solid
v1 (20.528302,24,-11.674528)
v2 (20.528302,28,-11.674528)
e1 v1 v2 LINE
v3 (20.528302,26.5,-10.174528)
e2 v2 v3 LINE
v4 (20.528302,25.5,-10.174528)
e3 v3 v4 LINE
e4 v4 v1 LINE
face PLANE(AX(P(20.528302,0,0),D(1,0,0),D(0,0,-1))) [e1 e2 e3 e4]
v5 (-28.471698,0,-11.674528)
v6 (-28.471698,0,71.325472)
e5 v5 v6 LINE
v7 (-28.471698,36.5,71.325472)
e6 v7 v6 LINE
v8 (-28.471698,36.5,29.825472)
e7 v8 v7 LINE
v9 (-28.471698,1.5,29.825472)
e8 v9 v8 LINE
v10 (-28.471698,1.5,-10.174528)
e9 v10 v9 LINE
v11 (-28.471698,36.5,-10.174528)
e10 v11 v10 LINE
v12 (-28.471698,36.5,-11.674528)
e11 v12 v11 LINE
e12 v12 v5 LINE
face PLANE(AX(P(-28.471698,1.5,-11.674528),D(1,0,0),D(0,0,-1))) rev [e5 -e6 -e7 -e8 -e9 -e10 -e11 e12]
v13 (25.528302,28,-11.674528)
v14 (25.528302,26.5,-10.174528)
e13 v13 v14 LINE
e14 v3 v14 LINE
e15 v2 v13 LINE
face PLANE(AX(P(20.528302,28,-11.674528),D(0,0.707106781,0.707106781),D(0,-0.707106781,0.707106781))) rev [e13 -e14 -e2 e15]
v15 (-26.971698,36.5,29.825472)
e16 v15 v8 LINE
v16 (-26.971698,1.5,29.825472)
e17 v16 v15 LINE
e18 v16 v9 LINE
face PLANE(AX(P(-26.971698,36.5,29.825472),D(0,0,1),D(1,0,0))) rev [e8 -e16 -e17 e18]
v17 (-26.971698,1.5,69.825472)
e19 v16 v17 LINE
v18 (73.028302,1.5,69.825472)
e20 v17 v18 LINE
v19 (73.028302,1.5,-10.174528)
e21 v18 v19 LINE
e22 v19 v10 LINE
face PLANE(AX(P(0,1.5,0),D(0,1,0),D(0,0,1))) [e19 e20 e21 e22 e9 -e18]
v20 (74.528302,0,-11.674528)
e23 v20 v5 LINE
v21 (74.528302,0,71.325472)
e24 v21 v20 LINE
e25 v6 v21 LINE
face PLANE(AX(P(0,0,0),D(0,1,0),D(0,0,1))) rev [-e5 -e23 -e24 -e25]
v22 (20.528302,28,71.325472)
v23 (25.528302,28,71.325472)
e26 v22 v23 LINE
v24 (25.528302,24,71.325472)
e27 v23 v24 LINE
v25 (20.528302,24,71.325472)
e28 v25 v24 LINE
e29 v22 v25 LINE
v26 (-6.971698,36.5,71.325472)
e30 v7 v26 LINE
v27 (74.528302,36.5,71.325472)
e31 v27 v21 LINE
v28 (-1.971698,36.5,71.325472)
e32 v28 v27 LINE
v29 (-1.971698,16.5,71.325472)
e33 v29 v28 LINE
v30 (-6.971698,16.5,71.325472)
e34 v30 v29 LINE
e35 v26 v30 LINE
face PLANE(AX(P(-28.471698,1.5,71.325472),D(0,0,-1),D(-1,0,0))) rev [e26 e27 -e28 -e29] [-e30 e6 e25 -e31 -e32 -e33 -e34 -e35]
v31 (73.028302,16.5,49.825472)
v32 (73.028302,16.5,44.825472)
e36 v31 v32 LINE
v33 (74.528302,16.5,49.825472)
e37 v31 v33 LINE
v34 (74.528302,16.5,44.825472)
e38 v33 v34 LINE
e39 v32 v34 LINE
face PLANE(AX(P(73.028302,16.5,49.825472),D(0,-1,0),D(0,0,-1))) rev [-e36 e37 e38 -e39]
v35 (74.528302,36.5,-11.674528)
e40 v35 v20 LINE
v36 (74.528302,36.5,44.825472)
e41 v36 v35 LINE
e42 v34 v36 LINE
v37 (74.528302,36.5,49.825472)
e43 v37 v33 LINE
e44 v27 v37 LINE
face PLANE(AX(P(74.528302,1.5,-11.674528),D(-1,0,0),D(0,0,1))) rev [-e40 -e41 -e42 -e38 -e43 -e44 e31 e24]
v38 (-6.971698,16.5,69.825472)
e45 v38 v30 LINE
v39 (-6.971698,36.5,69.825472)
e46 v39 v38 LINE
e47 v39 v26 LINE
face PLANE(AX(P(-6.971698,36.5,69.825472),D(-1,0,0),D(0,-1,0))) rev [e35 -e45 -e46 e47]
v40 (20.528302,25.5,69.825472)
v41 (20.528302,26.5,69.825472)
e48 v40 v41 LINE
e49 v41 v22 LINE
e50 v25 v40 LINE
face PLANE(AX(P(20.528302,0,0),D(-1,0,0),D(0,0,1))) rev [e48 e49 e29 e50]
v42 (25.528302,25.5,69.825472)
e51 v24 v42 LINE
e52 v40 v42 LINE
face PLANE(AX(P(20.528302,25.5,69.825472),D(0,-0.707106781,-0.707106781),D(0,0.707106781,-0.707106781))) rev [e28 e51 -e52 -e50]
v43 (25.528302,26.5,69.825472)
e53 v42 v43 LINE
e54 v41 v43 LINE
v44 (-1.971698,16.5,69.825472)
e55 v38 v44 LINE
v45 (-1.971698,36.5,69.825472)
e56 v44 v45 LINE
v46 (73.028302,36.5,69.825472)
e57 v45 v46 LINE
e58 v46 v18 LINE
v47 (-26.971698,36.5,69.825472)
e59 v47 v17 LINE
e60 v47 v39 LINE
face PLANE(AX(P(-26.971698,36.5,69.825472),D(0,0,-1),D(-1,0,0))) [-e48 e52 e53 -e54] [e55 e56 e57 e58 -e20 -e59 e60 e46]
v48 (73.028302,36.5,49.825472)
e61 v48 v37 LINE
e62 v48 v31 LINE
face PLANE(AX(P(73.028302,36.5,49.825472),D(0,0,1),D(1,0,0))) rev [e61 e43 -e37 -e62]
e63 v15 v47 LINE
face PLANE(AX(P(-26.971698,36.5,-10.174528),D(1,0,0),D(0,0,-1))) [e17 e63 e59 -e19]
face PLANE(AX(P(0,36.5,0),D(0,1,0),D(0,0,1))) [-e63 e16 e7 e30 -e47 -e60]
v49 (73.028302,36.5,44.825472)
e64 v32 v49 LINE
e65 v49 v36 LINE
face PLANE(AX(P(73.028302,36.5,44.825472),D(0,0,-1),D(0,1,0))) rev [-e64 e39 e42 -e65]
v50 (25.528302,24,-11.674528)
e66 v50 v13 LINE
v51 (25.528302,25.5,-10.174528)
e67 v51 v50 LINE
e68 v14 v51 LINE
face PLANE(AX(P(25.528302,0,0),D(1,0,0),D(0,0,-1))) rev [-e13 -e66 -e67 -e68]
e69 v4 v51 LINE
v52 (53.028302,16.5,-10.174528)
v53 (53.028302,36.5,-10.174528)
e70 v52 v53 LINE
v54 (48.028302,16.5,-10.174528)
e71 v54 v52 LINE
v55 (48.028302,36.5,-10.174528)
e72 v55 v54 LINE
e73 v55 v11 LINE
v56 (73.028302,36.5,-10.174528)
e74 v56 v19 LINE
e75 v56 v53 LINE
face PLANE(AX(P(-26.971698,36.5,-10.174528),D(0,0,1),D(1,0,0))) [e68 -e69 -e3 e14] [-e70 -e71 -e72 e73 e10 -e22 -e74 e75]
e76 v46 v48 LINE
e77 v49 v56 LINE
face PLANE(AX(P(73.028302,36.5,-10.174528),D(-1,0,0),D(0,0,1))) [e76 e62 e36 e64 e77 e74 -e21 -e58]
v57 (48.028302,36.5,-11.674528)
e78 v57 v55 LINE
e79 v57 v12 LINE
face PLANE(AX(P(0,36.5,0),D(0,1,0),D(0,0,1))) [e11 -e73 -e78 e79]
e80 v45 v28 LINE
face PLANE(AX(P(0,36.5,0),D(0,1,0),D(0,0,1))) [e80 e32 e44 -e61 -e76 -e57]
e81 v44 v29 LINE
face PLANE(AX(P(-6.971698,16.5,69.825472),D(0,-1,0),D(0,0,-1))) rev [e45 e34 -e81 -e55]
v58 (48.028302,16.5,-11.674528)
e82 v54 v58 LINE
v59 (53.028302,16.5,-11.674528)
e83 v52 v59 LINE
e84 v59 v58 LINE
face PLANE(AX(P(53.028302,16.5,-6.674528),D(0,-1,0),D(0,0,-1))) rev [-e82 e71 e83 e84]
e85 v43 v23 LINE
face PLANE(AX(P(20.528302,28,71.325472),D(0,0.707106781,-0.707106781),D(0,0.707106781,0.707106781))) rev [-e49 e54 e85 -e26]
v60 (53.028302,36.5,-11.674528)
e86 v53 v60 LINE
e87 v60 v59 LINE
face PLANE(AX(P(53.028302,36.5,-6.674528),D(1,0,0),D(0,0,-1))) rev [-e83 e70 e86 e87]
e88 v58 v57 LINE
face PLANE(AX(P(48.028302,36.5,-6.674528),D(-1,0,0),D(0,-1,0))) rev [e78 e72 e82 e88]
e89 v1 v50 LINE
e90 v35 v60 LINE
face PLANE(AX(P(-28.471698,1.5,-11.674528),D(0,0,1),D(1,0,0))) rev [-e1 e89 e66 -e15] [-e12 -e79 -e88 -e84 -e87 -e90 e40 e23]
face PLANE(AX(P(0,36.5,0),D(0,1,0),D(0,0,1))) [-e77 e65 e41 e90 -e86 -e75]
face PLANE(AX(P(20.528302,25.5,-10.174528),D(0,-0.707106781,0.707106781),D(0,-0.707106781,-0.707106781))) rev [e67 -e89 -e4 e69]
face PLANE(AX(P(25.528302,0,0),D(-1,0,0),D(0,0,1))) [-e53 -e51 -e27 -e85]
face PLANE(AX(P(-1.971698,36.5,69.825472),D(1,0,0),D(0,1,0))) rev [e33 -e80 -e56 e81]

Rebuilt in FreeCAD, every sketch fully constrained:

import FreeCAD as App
import Part
import Sketcher
Q = App.Units.Quantity


def add_polygon(sketch, points):
    """Adds a closed chain of lines whose ends are joined by coincident constraints."""
    first, n = sketch.GeometryCount, len(points)
    for a, b in zip(points, points[1:] + points[:1]):
        sketch.addGeometry(Part.LineSegment(App.Vector(*a, 0), App.Vector(*b, 0)), False)
    for i in range(n):
        sketch.addConstraint(Sketcher.Constraint("Coincident", first + i, 2, first + (i + 1) % n, 1))

doc = App.newDocument("Part")
body = doc.addObject("PartDesign::Body", "Body")

# Sketch on XZ plane
sketch1 = body.newObject("Sketcher::SketchObject", "Sketch")
sketch1.AttachmentSupport = (doc.getObject("XZ_Plane"), [""])
sketch1.MapMode = "FlatFace"
add_polygon(sketch1, [(-28, -12), (-28, 71), (75, 71), (75, -12)])  # lines 0-3
sketch1.addConstraint([
    Sketcher.Constraint("Vertical", 0),
    Sketcher.Constraint("Horizontal", 1),
    Sketcher.Constraint("Vertical", 2),
    Sketcher.Constraint("Horizontal", 3),
    Sketcher.Constraint("DistanceX", 1, 1, 1, 2, Q("103 mm")),
    Sketcher.Constraint("DistanceY", 0, 1, 0, 2, Q("83 mm")),
    Sketcher.Constraint("DistanceX", 0, 2, -1, 1, Q("28.471698 mm")),
    Sketcher.Constraint("DistanceY", -1, 1, 0, 2, Q("71.325472 mm")),
])
pad1 = body.newObject("PartDesign::Pad", "Pad")
pad1.Profile = sketch1
pad1.Length = 1.5
pad1.Reversed = True

# Sketch on XZ plane
sketch2 = body.newObject("Sketcher::SketchObject", "Sketch001")
sketch2.AttachmentSupport = (doc.getObject("XZ_Plane"), [""])
sketch2.MapMode = "FlatFace"
sketch2.AttachmentOffset = App.Placement(App.Vector(0, 0, -1.5), App.Rotation())
add_polygon(sketch2, [(-28, -12), (-28, 71), (75, 71), (75, -12)])  # lines 0-3
add_polygon(sketch2, [(73, 70), (-27, 70), (-27, -10), (73, -10)])  # lines 4-7
sketch2.addConstraint([
    Sketcher.Constraint("Vertical", 0),
    Sketcher.Constraint("Horizontal", 1),
    Sketcher.Constraint("Vertical", 2),
    Sketcher.Constraint("Horizontal", 3),
    Sketcher.Constraint("Horizontal", 4),
    Sketcher.Constraint("Vertical", 5),
    Sketcher.Constraint("Horizontal", 6),
    Sketcher.Constraint("Vertical", 7),
    Sketcher.Constraint("DistanceX", 1, 1, 1, 2, Q("103 mm")),
    Sketcher.Constraint("DistanceX", 4, 2, 4, 1, Q("100 mm")),
    Sketcher.Constraint("DistanceY", 0, 1, 0, 2, Q("83 mm")),
    Sketcher.Constraint("DistanceY", 5, 2, 5, 1, Q("80 mm")),
    Sketcher.Constraint("DistanceX", 0, 2, 4, 2, Q("1.5 mm")),
    Sketcher.Constraint("DistanceY", 4, 2, 0, 2, Q("1.5 mm")),
    Sketcher.Constraint("DistanceX", 0, 2, -1, 1, Q("28.471698 mm")),
    Sketcher.Constraint("DistanceY", -1, 1, 0, 2, Q("71.325472 mm")),
])
pad2 = body.newObject("PartDesign::Pad", "Pad001")
pad2.Profile = sketch2
pad2.Length = 35
pad2.Reversed = True

# Sketch on YZ plane
sketch3 = body.newObject("Sketcher::SketchObject", "Sketch002")
sketch3.AttachmentSupport = (doc.getObject("YZ_Plane"), [""])
sketch3.MapMode = "FlatFace"
sketch3.AttachmentOffset = App.Placement(App.Vector(0, 0, -28.471698), App.Rotation())
add_polygon(sketch3, [(36, -10), (2, -10), (2, 30), (36, 30)])  # lines 0-3
sketch3.addConstraint([
    Sketcher.Constraint("Horizontal", 0),
    Sketcher.Constraint("Vertical", 1),
    Sketcher.Constraint("Horizontal", 2),
    Sketcher.Constraint("Vertical", 3),
    Sketcher.Constraint("DistanceX", 0, 2, 0, 1, Q("35 mm")),
    Sketcher.Constraint("DistanceY", 1, 1, 1, 2, Q("40 mm")),
    Sketcher.Constraint("DistanceX", -1, 1, 0, 2, Q("1.5 mm")),
    Sketcher.Constraint("DistanceY", 0, 2, -1, 1, Q("10.174528 mm")),
])
pocket1 = body.newObject("PartDesign::Pocket", "Pocket")
pocket1.Profile = sketch3
pocket1.Length = 1.5
pocket1.Reversed = True

# Sketch on XY plane
sketch4 = body.newObject("Sketcher::SketchObject", "Sketch003")
sketch4.AttachmentSupport = (doc.getObject("XY_Plane"), [""])
sketch4.MapMode = "FlatFace"
sketch4.AttachmentOffset = App.Placement(App.Vector(0, 0, 71.325472), App.Rotation())
add_polygon(sketch4, [(-7, 36), (-7, 16), (-2, 16), (-2, 36)])  # lines 0-3
sketch4.addConstraint([
    Sketcher.Constraint("Vertical", 0),
    Sketcher.Constraint("Horizontal", 1),
    Sketcher.Constraint("Vertical", 2),
    Sketcher.Constraint("Horizontal", 3),
    Sketcher.Constraint("DistanceX", 1, 1, 1, 2, Q("5 mm")),
    Sketcher.Constraint("DistanceY", 0, 2, 0, 1, Q("20 mm")),
    Sketcher.Constraint("DistanceY", -1, 1, 0, 2, Q("16.5 mm")),
    Sketcher.Constraint("DistanceX", 0, 2, -1, 1, Q("6.971698 mm")),
])
pocket2 = body.newObject("PartDesign::Pocket", "Pocket001")
pocket2.Profile = sketch4
pocket2.Length = 1.5

# Sketch on YZ plane
sketch5 = body.newObject("Sketcher::SketchObject", "Sketch004")
sketch5.AttachmentSupport = (doc.getObject("YZ_Plane"), [""])
sketch5.MapMode = "FlatFace"
sketch5.AttachmentOffset = App.Placement(App.Vector(0, 0, 74.528302), App.Rotation())
add_polygon(sketch5, [(36, 50), (16, 50), (16, 45), (36, 45)])  # lines 0-3
sketch5.addConstraint([
    Sketcher.Constraint("Horizontal", 0),
    Sketcher.Constraint("Vertical", 1),
    Sketcher.Constraint("Horizontal", 2),
    Sketcher.Constraint("Vertical", 3),
    Sketcher.Constraint("DistanceX", 0, 2, 0, 1, Q("20 mm")),
    Sketcher.Constraint("DistanceY", 1, 2, 1, 1, Q("5 mm")),
    Sketcher.Constraint("DistanceX", -1, 1, 0, 2, Q("16.5 mm")),
    Sketcher.Constraint("DistanceY", -1, 1, 0, 2, Q("49.825472 mm")),
])
pocket3 = body.newObject("PartDesign::Pocket", "Pocket002")
pocket3.Profile = sketch5
pocket3.Length = 1.5

# Sketch on YZ plane
sketch6 = body.newObject("Sketcher::SketchObject", "Sketch005")
sketch6.AttachmentSupport = (doc.getObject("YZ_Plane"), [""])
sketch6.MapMode = "FlatFace"
sketch6.AttachmentOffset = App.Placement(App.Vector(0, 0, 23.028302), App.Rotation())
add_polygon(sketch6, [(26.5, 69.8), (28, 71.3), (24, 71.3), (25.5, 69.8)])  # lines 0-3
add_polygon(sketch6, [(24, -11.7), (28, -11.7), (26.5, -10.2), (25.5, -10.2)])  # lines 4-7
sketch6.addConstraint([
    Sketcher.Constraint("Horizontal", 1),
    Sketcher.Constraint("Horizontal", 3),
    Sketcher.Constraint("Horizontal", 4),
    Sketcher.Constraint("Horizontal", 6),
    Sketcher.Constraint("Perpendicular", 0, 2),
    Sketcher.Constraint("Parallel", 2, 5),
    Sketcher.Constraint("Perpendicular", 5, 7),
    Sketcher.Constraint("Vertical", 0, 2, 4, 2),
    Sketcher.Constraint("Vertical", 3, 2, 5, 2),
    Sketcher.Constraint("Vertical", 2, 2, 6, 2),
    Sketcher.Constraint("Vertical", 1, 2, 7, 2),
    Sketcher.Constraint("DistanceX", 1, 2, 1, 1, Q("4 mm")),
    Sketcher.Constraint("DistanceX", 3, 1, 3, 2, Q("1 mm")),
    Sketcher.Constraint("DistanceX", -1, 1, 0, 2, Q("28 mm")),
    Sketcher.Constraint("DistanceY", 4, 2, 0, 2, Q("83 mm")),
    Sketcher.Constraint("DistanceY", -1, 1, 0, 2, Q("71.325472 mm")),
])
pocket4 = body.newObject("PartDesign::Pocket", "Pocket003")
pocket4.Profile = sketch6
pocket4.Length = 5
pocket4.Midplane = True

# Sketch on XY plane
sketch7 = body.newObject("Sketcher::SketchObject", "Sketch006")
sketch7.AttachmentSupport = (doc.getObject("XY_Plane"), [""])
sketch7.MapMode = "FlatFace"
sketch7.AttachmentOffset = App.Placement(App.Vector(0, 0, -11.674528), App.Rotation())
add_polygon(sketch7, [(53, 36), (53, 16), (48, 16), (48, 36)])  # lines 0-3
sketch7.addConstraint([
    Sketcher.Constraint("Vertical", 0),
    Sketcher.Constraint("Horizontal", 1),
    Sketcher.Constraint("Vertical", 2),
    Sketcher.Constraint("Horizontal", 3),
    Sketcher.Constraint("DistanceX", 1, 2, 1, 1, Q("5 mm")),
    Sketcher.Constraint("DistanceY", 0, 2, 0, 1, Q("20 mm")),
    Sketcher.Constraint("DistanceY", -1, 1, 0, 2, Q("16.5 mm")),
    Sketcher.Constraint("DistanceX", -1, 1, 0, 2, Q("53.028302 mm")),
])
pocket5 = body.newObject("PartDesign::Pocket", "Pocket004")
pocket5.Profile = sketch7
pocket5.Length = 5
pocket5.Reversed = True

doc.recompute()
